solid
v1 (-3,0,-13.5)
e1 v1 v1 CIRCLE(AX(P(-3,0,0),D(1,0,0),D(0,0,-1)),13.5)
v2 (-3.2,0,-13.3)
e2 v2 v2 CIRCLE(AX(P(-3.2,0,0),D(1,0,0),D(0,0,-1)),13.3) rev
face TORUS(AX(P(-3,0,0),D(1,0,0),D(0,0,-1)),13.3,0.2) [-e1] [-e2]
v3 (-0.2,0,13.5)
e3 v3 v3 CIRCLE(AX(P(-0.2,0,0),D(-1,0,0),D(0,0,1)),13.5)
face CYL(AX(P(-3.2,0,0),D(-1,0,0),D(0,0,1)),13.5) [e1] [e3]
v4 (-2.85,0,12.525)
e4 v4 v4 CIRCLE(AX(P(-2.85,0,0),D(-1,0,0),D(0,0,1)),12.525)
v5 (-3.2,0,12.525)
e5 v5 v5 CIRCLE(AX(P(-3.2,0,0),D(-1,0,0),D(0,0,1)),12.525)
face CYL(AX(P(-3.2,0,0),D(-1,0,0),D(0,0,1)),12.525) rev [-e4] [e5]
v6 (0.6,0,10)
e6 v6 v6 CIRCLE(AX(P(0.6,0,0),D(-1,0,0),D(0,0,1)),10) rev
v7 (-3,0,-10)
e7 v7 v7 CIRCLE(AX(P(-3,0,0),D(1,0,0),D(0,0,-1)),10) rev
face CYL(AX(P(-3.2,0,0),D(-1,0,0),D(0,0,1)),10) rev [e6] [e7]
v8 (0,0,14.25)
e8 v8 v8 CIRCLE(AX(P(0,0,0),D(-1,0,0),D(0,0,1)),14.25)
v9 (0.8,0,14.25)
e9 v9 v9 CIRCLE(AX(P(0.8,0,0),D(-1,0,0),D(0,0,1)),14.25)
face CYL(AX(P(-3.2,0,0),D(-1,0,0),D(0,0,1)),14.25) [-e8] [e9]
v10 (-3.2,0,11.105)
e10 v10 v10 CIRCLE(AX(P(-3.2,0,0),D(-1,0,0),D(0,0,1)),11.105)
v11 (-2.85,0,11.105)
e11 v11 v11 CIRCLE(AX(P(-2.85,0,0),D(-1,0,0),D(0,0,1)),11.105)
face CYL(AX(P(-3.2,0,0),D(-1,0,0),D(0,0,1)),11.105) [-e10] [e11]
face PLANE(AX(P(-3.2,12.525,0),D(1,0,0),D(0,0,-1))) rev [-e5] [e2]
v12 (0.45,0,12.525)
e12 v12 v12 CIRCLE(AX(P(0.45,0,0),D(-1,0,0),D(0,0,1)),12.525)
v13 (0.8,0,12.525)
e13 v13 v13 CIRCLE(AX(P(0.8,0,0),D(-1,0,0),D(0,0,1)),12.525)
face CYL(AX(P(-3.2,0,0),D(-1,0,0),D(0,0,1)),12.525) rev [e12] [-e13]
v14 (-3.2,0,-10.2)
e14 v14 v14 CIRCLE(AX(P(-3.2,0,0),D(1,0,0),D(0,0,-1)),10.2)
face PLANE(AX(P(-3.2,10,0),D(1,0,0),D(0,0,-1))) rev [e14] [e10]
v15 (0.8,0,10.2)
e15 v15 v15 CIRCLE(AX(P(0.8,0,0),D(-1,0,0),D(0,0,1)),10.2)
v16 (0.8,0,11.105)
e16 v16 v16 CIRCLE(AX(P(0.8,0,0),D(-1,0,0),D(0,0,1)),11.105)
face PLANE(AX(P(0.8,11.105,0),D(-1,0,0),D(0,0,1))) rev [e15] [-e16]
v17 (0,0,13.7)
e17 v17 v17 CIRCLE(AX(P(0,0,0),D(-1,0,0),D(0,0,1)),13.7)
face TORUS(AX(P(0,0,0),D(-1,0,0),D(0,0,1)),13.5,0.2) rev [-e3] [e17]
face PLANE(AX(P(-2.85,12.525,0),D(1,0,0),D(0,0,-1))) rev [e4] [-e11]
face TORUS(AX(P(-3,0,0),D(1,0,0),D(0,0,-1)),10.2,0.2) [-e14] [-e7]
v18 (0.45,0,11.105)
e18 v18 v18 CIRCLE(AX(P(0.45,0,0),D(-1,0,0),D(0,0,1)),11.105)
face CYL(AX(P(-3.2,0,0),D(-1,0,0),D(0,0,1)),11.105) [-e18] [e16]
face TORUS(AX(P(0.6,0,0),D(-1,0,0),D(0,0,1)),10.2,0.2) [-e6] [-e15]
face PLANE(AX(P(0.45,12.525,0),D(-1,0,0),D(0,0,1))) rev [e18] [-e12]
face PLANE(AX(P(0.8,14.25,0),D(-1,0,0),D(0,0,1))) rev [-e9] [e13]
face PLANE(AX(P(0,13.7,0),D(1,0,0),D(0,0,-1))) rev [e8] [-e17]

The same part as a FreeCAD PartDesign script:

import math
import FreeCAD as App
import Part
import Sketcher


def edges_at(feature, points):
    """Names of the edges that pass closest to the given points."""
    edges = feature.Shape.Edges
    near = lambda p: min(range(len(edges)), key=lambda i: edges[i].distToShape(Part.Vertex(*p))[0])
    return sorted({f"Edge{near(p) + 1}" for p in points})

doc = App.newDocument("Part")
body = doc.addObject("PartDesign::Body", "Body")

# Sketch on XY plane
sketch1 = doc.addObject("Sketcher::SketchObject", "Sketch")
body.addObject(sketch1)
sketch1.AttachmentSupport = (doc.XY_Plane, [""])
sketch1.MapMode = "FlatFace"
sketch1.addGeometry([
    Part.LineSegment(App.Vector(0, 14.25, 0), App.Vector(0, 13.7, 0)),  # 0
    Part.ArcOfCircle(Part.Circle(App.Vector(0, 13.5, 0), App.Vector(0, 0, 1), 0.2), math.radians(180), math.radians(450)),  # 1
    Part.LineSegment(App.Vector(-0.2, 13.5, 0), App.Vector(-3.2, 13.5, 0)),  # 2
    Part.LineSegment(App.Vector(-3.2, 13.5, 0), App.Vector(-3.2, 12.53, 0)),  # 3
    Part.LineSegment(App.Vector(-3.2, 12.53, 0), App.Vector(-2.85, 12.53, 0)),  # 4
    Part.LineSegment(App.Vector(-2.85, 12.53, 0), App.Vector(-2.85, 11.11, 0)),  # 5
    Part.LineSegment(App.Vector(-2.85, 11.11, 0), App.Vector(-3.2, 11.11, 0)),  # 6
    Part.LineSegment(App.Vector(-3.2, 11.11, 0), App.Vector(-3.2, 10, 0)),  # 7
    Part.LineSegment(App.Vector(-3.2, 10, 0), App.Vector(0.8, 10, 0)),  # 8
    Part.LineSegment(App.Vector(0.8, 10, 0), App.Vector(0.8, 11.11, 0)),  # 9
    Part.LineSegment(App.Vector(0.8, 11.11, 0), App.Vector(0.45, 11.11, 0)),  # 10
    Part.LineSegment(App.Vector(0.45, 11.11, 0), App.Vector(0.45, 12.53, 0)),  # 11
    Part.LineSegment(App.Vector(0.45, 12.53, 0), App.Vector(0.8, 12.53, 0)),  # 12
    Part.LineSegment(App.Vector(0.8, 12.53, 0), App.Vector(0.8, 14.25, 0)),  # 13
    Part.LineSegment(App.Vector(0.8, 14.25, 0), App.Vector(0, 14.25, 0)),  # 14
], False)
sketch1.addConstraint([
    Sketcher.Constraint("Coincident", 0, 2, 1, 2),
    Sketcher.Constraint("Coincident", 1, 1, 2, 1),
    Sketcher.Constraint("Coincident", 2, 2, 3, 1),
    Sketcher.Constraint("Coincident", 3, 2, 4, 1),
    Sketcher.Constraint("Coincident", 4, 2, 5, 1),
    Sketcher.Constraint("Coincident", 5, 2, 6, 1),
    Sketcher.Constraint("Coincident", 6, 2, 7, 1),
    Sketcher.Constraint("Coincident", 7, 2, 8, 1),
    Sketcher.Constraint("Coincident", 8, 2, 9, 1),
    Sketcher.Constraint("Coincident", 9, 2, 10, 1),
    Sketcher.Constraint("Coincident", 10, 2, 11, 1),
    Sketcher.Constraint("Coincident", 11, 2, 12, 1),
    Sketcher.Constraint("Coincident", 12, 2, 13, 1),
    Sketcher.Constraint("Coincident", 13, 2, 14, 1),
    Sketcher.Constraint("Coincident", 14, 2, 0, 1),
    Sketcher.Constraint("Vertical", 0),
    Sketcher.Constraint("Horizontal", 2),
    Sketcher.Constraint("Vertical", 3),
    Sketcher.Constraint("Horizontal", 4),
    Sketcher.Constraint("Vertical", 5),
    Sketcher.Constraint("Horizontal", 6),
    Sketcher.Constraint("Vertical", 7),
    Sketcher.Constraint("Horizontal", 8),
    Sketcher.Constraint("Vertical", 9),
    Sketcher.Constraint("Horizontal", 10),
    Sketcher.Constraint("Vertical", 11),
    Sketcher.Constraint("Horizontal", 12),
    Sketcher.Constraint("Vertical", 13),
    Sketcher.Constraint("Horizontal", 14),
    Sketcher.Constraint("PointOnObject", 1, 3, -2),
    Sketcher.Constraint("PointOnObject", 0, 2, -2),
    Sketcher.Constraint("Horizontal", 6, 2, 9, 2),
    Sketcher.Constraint("Horizontal", 4, 2, 11, 2),
    Sketcher.Constraint("Vertical", 3, 2, 6, 2),
    Sketcher.Constraint("Vertical", 9, 2, 12, 2),
    Sketcher.Constraint("Equal", 6, 10),
    Sketcher.Constraint("Radius", 1, 0.2),
    Sketcher.Constraint("DistanceX", 2, 2, 2, 1, 3.0),
    Sketcher.Constraint("DistanceX", 8, 1, 8, 2, 4.0),
    Sketcher.Constraint("DistanceY", -1, 1, 7, 2, 10.0),
    Sketcher.Constraint("DistanceX", 4, 1, 4, 2, 0.35),
    Sketcher.Constraint("DistanceY", 0, 2, 0, 1, 0.55),
    Sketcher.Constraint("DistanceY", 5, 2, 5, 1, 1.42),
    Sketcher.Constraint("DistanceY", -1, 1, 1, 3, 13.5),
    Sketcher.Constraint("DistanceY", -1, 1, 1, 1, 13.5),
    Sketcher.Constraint("DistanceY", 3, 2, 3, 1, 0.975),
])
revolution = doc.addObject("PartDesign::Revolution", "Revolution")
body.addObject(revolution)
revolution.Profile = sketch1
revolution.ReferenceAxis = (sketch1, ["H_Axis"])
revolution.Angle = 360
doc.recompute()

fillet = doc.addObject("PartDesign::Fillet", "Fillet")
body.addObject(fillet)
fillet.Base = (revolution, edges_at(revolution, [(0.8, 0, -10), (-3.2, 0, -10), (-3.2, 0, -13.5)]))
fillet.Radius = 0.2

doc.recompute()
